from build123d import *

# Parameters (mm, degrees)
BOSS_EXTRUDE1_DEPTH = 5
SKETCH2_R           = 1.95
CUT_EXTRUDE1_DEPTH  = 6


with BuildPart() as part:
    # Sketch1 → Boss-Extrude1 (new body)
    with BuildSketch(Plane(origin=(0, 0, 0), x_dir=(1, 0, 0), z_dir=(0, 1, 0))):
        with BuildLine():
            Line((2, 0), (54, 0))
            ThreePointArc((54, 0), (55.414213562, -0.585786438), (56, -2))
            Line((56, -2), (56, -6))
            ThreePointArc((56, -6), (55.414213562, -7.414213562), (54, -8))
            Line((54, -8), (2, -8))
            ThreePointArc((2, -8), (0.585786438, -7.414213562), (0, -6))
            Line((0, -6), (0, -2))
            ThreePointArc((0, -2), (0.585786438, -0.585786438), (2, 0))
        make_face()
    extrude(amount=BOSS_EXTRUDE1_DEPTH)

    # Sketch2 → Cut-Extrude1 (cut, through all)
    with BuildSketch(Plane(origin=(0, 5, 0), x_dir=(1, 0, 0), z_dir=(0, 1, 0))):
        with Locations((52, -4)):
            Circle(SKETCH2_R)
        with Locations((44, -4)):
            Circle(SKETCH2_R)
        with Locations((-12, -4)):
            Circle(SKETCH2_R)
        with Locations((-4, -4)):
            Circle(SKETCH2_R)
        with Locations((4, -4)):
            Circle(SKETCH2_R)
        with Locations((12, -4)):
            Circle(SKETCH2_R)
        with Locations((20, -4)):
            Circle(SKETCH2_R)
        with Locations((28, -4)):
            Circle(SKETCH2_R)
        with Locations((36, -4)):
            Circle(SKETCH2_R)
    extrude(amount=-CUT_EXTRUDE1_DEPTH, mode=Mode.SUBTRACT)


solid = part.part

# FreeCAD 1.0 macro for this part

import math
import FreeCAD as App
import Part
import Sketcher

doc = App.newDocument("Part")
params = doc.addObject("Spreadsheet::Sheet", "Params")
for row, (alias, value) in enumerate([
    ("sketch1_radius", "2 mm"),
    ("sketch1_width", "52 mm"),
    ("sketch1_height", "4 mm"),
    ("pad1_length", "5 mm"),
    ("sketch2_diameter", "3.9 mm"),
], start=1):
    params.set(f"A{row}", alias)
    params.set(f"B{row}", "=" + value)
    params.setAlias(f"B{row}", alias)

body = doc.addObject("PartDesign::Body", "Body")

# Sketch on XZ plane
sketch1 = body.newObject("Sketcher::SketchObject", "Sketch")
sketch1.AttachmentSupport = (doc.getObject("XZ_Plane"), [""])
sketch1.MapMode = "FlatFace"
sketch1.addGeometry([
    Part.LineSegment(App.Vector(54, 0, 0), App.Vector(2, 0, 0)),  # 0
    Part.ArcOfCircle(Part.Circle(App.Vector(2, 2, 0), App.Vector(0, 0, 1), 2), math.radians(-180), math.radians(-90)),  # 1
    Part.LineSegment(App.Vector(0, 2, 0), App.Vector(0, 6, 0)),  # 2
    Part.ArcOfCircle(Part.Circle(App.Vector(2, 6, 0), App.Vector(0, 0, 1), 2), math.radians(90), math.radians(180)),  # 3
    Part.LineSegment(App.Vector(2, 8, 0), App.Vector(54, 8, 0)),  # 4
    Part.ArcOfCircle(Part.Circle(App.Vector(54, 6, 0), App.Vector(0, 0, 1), 2), math.radians(0), math.radians(90)),  # 5
    Part.LineSegment(App.Vector(56, 6, 0), App.Vector(56, 2, 0)),  # 6
    Part.ArcOfCircle(Part.Circle(App.Vector(54, 2, 0), App.Vector(0, 0, 1), 2), math.radians(-90), math.radians(0)),  # 7
], False)
sketch1.addConstraint([
    Sketcher.Constraint("Tangent", 0, 2, 1, 2),
    Sketcher.Constraint("Tangent", 1, 1, 2, 1),
    Sketcher.Constraint("Tangent", 2, 2, 3, 2),
    Sketcher.Constraint("Tangent", 3, 1, 4, 1),
    Sketcher.Constraint("Tangent", 4, 2, 5, 2),
    Sketcher.Constraint("Tangent", 5, 1, 6, 1),
    Sketcher.Constraint("Tangent", 6, 2, 7, 2),
    Sketcher.Constraint("Tangent", 7, 1, 0, 1),
    Sketcher.Constraint("Horizontal", 0),
    Sketcher.Constraint("Vertical", 2),
    Sketcher.Constraint("Horizontal", 4),
    Sketcher.Constraint("Vertical", 6),
    Sketcher.Constraint("Equal", 1, 3),
    Sketcher.Constraint("Equal", 3, 5),
    Sketcher.Constraint("Equal", 5, 7),
    Sketcher.Constraint("PointOnObject", 0, 2, -1),
    Sketcher.Constraint("PointOnObject", 1, 1, -2),
    Sketcher.Constraint("Radius", 1, 2.0),
    Sketcher.Constraint("DistanceX", 0, 2, 0, 1, 52.0),
    Sketcher.Constraint("DistanceY", 2, 1, 2, 2, 4.0),
])
sketch1.setExpression("Constraints[17]", "Params.sketch1_radius")
sketch1.setExpression("Constraints[18]", "Params.sketch1_width")
sketch1.setExpression("Constraints[19]", "Params.sketch1_height")
pad1 = body.newObject("PartDesign::Pad", "Pad")
pad1.Profile = sketch1
pad1.setExpression("Length", "Params.pad1_length")
pad1.Reversed = True

# Sketch on XZ plane
sketch2 = body.newObject("Sketcher::SketchObject", "Sketch001")
sketch2.AttachmentSupport = (doc.getObject("XZ_Plane"), [""])
sketch2.MapMode = "FlatFace"
sketch2.AttachmentOffset = App.Placement(App.Vector(0, 0, -5), App.Rotation())
sketch2.addGeometry([
    Part.Circle(App.Vector(52, 4, 0), App.Vector(0, 0, 1), 1.9),  # 0
    Part.Circle(App.Vector(44, 4, 0), App.Vector(0, 0, 1), 1.9),  # 1
    Part.Circle(App.Vector(-12, 4, 0), App.Vector(0, 0, 1), 1.9),  # 2
    Part.Circle(App.Vector(-4, 4, 0), App.Vector(0, 0, 1), 1.9),  # 3
    Part.Circle(App.Vector(4, 4, 0), App.Vector(0, 0, 1), 1.9),  # 4
    Part.Circle(App.Vector(12, 4, 0), App.Vector(0, 0, 1), 1.9),  # 5
    Part.Circle(App.Vector(20, 4, 0), App.Vector(0, 0, 1), 1.9),  # 6
    Part.Circle(App.Vector(28, 4, 0), App.Vector(0, 0, 1), 1.9),  # 7
    Part.Circle(App.Vector(36, 4, 0), App.Vector(0, 0, 1), 1.9),  # 8
], False)
sketch2.addConstraint([
    Sketcher.Constraint("Equal", 0, 1),
    Sketcher.Constraint("Equal", 1, 2),
    Sketcher.Constraint("Equal", 2, 3),
    Sketcher.Constraint("Equal", 3, 4),
    Sketcher.Constraint("Equal", 4, 5),
    Sketcher.Constraint("Equal", 5, 6),
    Sketcher.Constraint("Equal", 6, 7),
    Sketcher.Constraint("Equal", 7, 8),
    Sketcher.Constraint("Symmetric", 3, 3, 4, 3, -2),
    Sketcher.Constraint("Symmetric", 2, 3, 5, 3, -2),
    Sketcher.Constraint("Horizontal", 0, 3, 1, 3),
    Sketcher.Constraint("Horizontal", 1, 3, 2, 3),
    Sketcher.Constraint("Horizontal", 2, 3, 3, 3),
    Sketcher.Constraint("Horizontal", 5, 3, 6, 3),
    Sketcher.Constraint("Horizontal", 6, 3, 7, 3),
    Sketcher.Constraint("Horizontal", 7, 3, 8, 3),
    Sketcher.Constraint("Diameter", 0, 3.9),
    Sketcher.Constraint("DistanceX", -1, 1, 0, 3, 52.0),
    Sketcher.Constraint("DistanceY", -1, 1, 0, 3, 4.0),
    Sketcher.Constraint("DistanceX", -1, 1, 1, 3, 44.0),
    Sketcher.Constraint("DistanceX", 2, 3, -1, 1, 12.0),
    Sketcher.Constraint("DistanceX", 3, 3, -1, 1, 4.0),
    Sketcher.Constraint("DistanceX", -1, 1, 6, 3, 20.0),
    Sketcher.Constraint("DistanceX", -1, 1, 7, 3, 28.0),
    Sketcher.Constraint("DistanceX", -1, 1, 8, 3, 36.0),
])
sketch2.setExpression("Constraints[16]", "Params.sketch2_diameter")
pocket1 = body.newObject("PartDesign::Pocket", "Pocket")
pocket1.Profile = sketch2
pocket1.Type = "ThroughAll"
pocket1.Reversed = True

doc.recompute()
